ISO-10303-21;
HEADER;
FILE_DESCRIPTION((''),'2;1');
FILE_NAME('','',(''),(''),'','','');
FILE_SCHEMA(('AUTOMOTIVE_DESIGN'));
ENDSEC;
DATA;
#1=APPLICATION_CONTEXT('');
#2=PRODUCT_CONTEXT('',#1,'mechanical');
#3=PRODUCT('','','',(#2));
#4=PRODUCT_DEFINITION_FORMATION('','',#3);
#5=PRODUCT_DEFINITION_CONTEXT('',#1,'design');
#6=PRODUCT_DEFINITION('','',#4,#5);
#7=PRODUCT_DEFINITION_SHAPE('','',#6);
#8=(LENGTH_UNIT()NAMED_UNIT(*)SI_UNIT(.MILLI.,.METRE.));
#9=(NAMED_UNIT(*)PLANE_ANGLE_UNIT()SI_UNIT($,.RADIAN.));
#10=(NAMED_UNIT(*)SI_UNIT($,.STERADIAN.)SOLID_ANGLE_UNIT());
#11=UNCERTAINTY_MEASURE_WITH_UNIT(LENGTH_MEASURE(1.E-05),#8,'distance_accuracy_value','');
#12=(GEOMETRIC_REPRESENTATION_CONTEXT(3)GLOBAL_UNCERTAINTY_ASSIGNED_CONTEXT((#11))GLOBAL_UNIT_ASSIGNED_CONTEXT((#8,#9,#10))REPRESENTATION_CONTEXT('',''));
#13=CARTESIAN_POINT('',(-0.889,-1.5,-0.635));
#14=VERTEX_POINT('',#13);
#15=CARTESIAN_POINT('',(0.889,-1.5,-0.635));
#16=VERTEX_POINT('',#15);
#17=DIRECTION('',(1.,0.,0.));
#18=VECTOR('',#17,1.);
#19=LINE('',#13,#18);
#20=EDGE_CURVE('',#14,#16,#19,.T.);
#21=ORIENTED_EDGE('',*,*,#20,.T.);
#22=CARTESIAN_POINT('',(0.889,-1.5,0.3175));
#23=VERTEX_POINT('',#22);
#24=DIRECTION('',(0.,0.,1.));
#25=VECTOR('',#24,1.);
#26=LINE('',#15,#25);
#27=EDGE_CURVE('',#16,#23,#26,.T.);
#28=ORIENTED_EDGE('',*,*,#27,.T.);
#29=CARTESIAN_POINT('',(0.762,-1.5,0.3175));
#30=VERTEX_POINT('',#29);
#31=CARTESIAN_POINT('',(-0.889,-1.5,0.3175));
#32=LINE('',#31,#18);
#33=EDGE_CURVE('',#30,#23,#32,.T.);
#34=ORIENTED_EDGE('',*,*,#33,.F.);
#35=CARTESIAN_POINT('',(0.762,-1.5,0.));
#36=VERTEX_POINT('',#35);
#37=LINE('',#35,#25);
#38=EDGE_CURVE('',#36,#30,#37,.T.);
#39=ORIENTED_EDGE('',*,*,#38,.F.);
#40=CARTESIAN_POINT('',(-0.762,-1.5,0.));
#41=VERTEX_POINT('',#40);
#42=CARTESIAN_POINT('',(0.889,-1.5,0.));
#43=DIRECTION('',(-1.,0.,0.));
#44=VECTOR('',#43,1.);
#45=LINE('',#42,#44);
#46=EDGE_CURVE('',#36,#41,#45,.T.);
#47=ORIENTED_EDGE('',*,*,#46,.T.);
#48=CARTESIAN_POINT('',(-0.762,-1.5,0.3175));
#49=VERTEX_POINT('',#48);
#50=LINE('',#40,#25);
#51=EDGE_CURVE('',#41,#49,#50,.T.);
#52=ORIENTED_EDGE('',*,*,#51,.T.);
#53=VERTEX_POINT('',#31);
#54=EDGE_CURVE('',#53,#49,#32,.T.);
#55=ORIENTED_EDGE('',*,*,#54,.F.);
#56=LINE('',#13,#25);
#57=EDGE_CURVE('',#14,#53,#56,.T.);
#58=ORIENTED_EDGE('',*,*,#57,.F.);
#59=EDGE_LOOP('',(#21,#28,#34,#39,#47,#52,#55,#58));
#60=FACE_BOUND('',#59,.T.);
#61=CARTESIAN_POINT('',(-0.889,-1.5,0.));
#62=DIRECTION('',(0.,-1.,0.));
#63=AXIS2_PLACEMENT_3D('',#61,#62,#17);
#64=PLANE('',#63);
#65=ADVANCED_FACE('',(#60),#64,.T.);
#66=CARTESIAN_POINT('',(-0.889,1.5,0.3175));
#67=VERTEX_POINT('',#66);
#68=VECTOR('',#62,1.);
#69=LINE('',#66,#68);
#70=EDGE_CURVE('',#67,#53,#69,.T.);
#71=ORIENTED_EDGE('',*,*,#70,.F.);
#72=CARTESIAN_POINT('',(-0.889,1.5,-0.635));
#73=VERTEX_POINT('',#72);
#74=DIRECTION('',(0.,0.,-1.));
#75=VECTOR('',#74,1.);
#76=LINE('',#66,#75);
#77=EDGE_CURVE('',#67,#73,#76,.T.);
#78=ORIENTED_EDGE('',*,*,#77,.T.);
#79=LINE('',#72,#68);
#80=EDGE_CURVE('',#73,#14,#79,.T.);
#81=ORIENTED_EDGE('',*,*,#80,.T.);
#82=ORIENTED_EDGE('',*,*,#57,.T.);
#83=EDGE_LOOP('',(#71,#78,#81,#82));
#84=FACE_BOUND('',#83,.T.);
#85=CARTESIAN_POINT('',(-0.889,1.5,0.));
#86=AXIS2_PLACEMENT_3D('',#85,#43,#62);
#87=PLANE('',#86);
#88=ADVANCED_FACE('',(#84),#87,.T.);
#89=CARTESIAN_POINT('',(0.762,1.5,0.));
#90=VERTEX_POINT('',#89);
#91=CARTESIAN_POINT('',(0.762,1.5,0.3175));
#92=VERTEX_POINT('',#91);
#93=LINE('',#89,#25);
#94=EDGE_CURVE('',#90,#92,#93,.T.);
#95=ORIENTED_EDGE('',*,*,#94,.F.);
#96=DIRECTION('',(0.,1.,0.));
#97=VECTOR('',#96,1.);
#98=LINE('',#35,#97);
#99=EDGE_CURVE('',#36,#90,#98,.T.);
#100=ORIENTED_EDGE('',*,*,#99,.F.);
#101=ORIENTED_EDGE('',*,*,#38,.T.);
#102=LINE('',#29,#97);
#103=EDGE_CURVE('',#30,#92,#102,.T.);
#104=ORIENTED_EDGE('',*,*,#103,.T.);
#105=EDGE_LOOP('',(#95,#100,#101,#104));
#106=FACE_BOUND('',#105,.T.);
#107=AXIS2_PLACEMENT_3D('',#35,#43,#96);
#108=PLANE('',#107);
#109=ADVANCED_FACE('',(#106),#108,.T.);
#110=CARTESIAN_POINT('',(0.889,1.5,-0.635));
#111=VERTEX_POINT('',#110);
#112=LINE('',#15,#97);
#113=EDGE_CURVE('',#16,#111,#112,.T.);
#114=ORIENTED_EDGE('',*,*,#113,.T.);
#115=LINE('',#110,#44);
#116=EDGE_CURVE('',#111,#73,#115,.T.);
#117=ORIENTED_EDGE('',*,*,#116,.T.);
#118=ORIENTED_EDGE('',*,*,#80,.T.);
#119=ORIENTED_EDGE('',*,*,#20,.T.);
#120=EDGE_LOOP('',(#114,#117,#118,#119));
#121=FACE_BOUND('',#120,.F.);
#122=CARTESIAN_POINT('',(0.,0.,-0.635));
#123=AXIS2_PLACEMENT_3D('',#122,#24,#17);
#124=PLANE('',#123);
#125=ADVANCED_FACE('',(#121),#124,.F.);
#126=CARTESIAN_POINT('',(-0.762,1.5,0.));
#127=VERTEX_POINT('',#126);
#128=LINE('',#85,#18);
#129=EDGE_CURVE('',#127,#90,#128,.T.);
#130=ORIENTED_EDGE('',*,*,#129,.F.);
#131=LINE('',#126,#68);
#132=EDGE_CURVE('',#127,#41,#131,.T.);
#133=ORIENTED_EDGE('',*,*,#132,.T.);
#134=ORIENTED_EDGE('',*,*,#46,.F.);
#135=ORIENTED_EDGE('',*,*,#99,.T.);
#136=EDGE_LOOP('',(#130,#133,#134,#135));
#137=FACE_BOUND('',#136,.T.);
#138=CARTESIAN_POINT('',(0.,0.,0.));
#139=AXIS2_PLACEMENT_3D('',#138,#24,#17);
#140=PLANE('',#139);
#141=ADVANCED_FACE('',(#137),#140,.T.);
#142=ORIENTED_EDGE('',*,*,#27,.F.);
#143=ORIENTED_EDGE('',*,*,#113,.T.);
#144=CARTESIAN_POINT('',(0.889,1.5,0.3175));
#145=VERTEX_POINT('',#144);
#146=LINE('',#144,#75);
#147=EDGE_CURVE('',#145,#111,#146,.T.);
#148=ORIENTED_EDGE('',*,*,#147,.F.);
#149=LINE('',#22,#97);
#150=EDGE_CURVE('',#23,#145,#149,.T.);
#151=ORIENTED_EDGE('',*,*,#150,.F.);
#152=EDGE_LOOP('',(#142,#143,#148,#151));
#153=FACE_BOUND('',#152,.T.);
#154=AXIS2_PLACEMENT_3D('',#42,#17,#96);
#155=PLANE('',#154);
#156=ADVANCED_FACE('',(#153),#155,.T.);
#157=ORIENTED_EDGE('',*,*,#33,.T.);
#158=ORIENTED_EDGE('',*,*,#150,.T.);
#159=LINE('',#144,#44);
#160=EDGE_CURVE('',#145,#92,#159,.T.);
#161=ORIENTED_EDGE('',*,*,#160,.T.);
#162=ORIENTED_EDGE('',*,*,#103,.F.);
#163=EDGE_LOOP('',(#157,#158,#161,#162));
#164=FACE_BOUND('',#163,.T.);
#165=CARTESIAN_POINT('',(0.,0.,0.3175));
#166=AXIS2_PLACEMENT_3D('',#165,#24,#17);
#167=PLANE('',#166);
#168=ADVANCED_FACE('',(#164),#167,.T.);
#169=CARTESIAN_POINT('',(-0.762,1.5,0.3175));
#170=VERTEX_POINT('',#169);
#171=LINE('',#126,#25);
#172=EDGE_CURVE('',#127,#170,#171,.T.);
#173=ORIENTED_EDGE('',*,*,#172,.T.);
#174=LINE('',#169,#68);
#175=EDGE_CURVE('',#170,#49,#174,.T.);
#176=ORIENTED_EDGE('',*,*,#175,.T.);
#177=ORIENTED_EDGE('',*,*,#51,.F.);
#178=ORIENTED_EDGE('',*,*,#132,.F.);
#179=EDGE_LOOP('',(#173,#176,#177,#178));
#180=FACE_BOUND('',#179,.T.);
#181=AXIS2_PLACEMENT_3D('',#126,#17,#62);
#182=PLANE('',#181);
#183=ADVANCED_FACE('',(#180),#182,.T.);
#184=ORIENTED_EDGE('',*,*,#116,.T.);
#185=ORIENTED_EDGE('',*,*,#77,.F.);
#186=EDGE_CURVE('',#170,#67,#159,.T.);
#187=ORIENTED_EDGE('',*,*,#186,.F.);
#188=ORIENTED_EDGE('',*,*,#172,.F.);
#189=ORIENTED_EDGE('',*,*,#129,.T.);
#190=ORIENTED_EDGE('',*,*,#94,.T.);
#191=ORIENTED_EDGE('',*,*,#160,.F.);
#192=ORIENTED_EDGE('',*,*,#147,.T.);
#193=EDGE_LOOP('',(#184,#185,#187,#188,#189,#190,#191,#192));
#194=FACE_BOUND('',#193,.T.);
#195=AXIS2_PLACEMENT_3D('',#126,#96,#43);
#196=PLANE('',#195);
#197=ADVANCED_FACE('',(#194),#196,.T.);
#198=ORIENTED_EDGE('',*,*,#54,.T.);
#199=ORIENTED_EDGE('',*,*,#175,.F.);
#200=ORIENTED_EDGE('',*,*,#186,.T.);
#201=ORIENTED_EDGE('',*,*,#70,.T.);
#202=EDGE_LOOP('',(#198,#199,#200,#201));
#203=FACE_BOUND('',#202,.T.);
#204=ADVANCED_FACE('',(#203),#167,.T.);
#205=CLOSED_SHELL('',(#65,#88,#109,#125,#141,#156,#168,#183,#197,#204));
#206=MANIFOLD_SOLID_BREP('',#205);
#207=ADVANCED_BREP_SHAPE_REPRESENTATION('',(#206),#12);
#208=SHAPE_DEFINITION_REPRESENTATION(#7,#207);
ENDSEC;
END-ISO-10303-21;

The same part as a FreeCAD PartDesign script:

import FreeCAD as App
import Part
import Sketcher
Q = App.Units.Quantity

doc = App.newDocument("Part")
body = doc.addObject("PartDesign::Body", "Body")

sketch1 = body.newObject("Sketcher::SketchObject", "Sketch")
sketch1.AttachmentSupport = (doc.getObject("XY_Plane"), [""])
sketch1.MapMode = "FlatFace"
sketch1.addGeometry(Part.LineSegment(App.Vector(-0.9, 1.5, 0), App.Vector(-0.9, -1.5, 0)), False)
sketch1.addGeometry(Part.LineSegment(App.Vector(-0.9, -1.5, 0), App.Vector(0.9, -1.5, 0)), False)
sketch1.addGeometry(Part.LineSegment(App.Vector(0.9, -1.5, 0), App.Vector(0.9, 1.5, 0)), False)
sketch1.addGeometry(Part.LineSegment(App.Vector(0.9, 1.5, 0), App.Vector(-0.9, 1.5, 0)), False)
sketch1.addConstraint(Sketcher.Constraint("Coincident", 0, 2, 1, 1))
sketch1.addConstraint(Sketcher.Constraint("Coincident", 1, 2, 2, 1))
sketch1.addConstraint(Sketcher.Constraint("Coincident", 2, 2, 3, 1))
sketch1.addConstraint(Sketcher.Constraint("Coincident", 3, 2, 0, 1))
sketch1.addConstraint(Sketcher.Constraint("Vertical", 0))
sketch1.addConstraint(Sketcher.Constraint("Horizontal", 1))
sketch1.addConstraint(Sketcher.Constraint("Vertical", 2))
sketch1.addConstraint(Sketcher.Constraint("Horizontal", 3))
sketch1.addConstraint(Sketcher.Constraint("Symmetric", 0, 2, 2, 2, -1, 1))
sketch1.addConstraint(Sketcher.Constraint("DistanceX", 1, 1, 1, 2, Q("0.07 in")))
sketch1.addConstraint(Sketcher.Constraint("DistanceY", 0, 2, 0, 1, Q("0.1181 in")))
pad1 = body.newObject("PartDesign::Pad", "Pad")
pad1.Profile = sketch1
pad1.Length = Q("0.025 in")
pad1.Reversed = True

sketch2 = body.newObject("Sketcher::SketchObject", "Sketch001")
sketch2.AttachmentSupport = (doc.getObject("XY_Plane"), [""])
sketch2.MapMode = "FlatFace"
sketch2.addGeometry(Part.LineSegment(App.Vector(-0.89, 1.5, 0), App.Vector(-0.89, -1.5, 0)), False)
sketch2.addGeometry(Part.LineSegment(App.Vector(-0.89, -1.5, 0), App.Vector(-0.76, -1.5, 0)), False)
sketch2.addGeometry(Part.LineSegment(App.Vector(-0.76, -1.5, 0), App.Vector(-0.76, 1.5, 0)), False)
sketch2.addGeometry(Part.LineSegment(App.Vector(-0.76, 1.5, 0), App.Vector(-0.89, 1.5, 0)), False)
sketch2.addGeometry(Part.LineSegment(App.Vector(0.76, 1.5, 0), App.Vector(0.76, -1.5, 0)), False)
sketch2.addGeometry(Part.LineSegment(App.Vector(0.76, -1.5, 0), App.Vector(0.89, -1.5, 0)), False)
sketch2.addGeometry(Part.LineSegment(App.Vector(0.89, -1.5, 0), App.Vector(0.89, 1.5, 0)), False)
sketch2.addGeometry(Part.LineSegment(App.Vector(0.89, 1.5, 0), App.Vector(0.76, 1.5, 0)), False)
sketch2.addConstraint(Sketcher.Constraint("Coincident", 0, 2, 1, 1))
sketch2.addConstraint(Sketcher.Constraint("Coincident", 1, 2, 2, 1))
sketch2.addConstraint(Sketcher.Constraint("Coincident", 2, 2, 3, 1))
sketch2.addConstraint(Sketcher.Constraint("Coincident", 3, 2, 0, 1))
sketch2.addConstraint(Sketcher.Constraint("Coincident", 4, 2, 5, 1))
sketch2.addConstraint(Sketcher.Constraint("Coincident", 5, 2, 6, 1))
sketch2.addConstraint(Sketcher.Constraint("Coincident", 6, 2, 7, 1))
sketch2.addConstraint(Sketcher.Constraint("Coincident", 7, 2, 4, 1))
sketch2.addConstraint(Sketcher.Constraint("Vertical", 0))
sketch2.addConstraint(Sketcher.Constraint("Horizontal", 1))
sketch2.addConstraint(Sketcher.Constraint("Vertical", 2))
sketch2.addConstraint(Sketcher.Constraint("Horizontal", 3))
sketch2.addConstraint(Sketcher.Constraint("Vertical", 4))
sketch2.addConstraint(Sketcher.Constraint("Horizontal", 5))
sketch2.addConstraint(Sketcher.Constraint("Vertical", 6))
sketch2.addConstraint(Sketcher.Constraint("Horizontal", 7))
sketch2.addConstraint(Sketcher.Constraint("Symmetric", 2, 2, 4, 2, -1, 1))
sketch2.addConstraint(Sketcher.Constraint("Symmetric", 0, 2, 6, 2, -1, 1))
sketch2.addConstraint(Sketcher.Constraint("Horizontal", 1, 2, 4, 2))
sketch2.addConstraint(Sketcher.Constraint("DistanceX", 1, 2, 4, 2, Q("0.06 in")))
sketch2.addConstraint(Sketcher.Constraint("DistanceX", 0, 2, 5, 2, Q("0.07 in")))
sketch2.addConstraint(Sketcher.Constraint("DistanceY", 0, 2, 0, 1, Q("0.1181 in")))
pad2 = body.newObject("PartDesign::Pad", "Pad001")
pad2.Profile = sketch2
pad2.Length = Q("0.0125 in")

doc.recompute()
